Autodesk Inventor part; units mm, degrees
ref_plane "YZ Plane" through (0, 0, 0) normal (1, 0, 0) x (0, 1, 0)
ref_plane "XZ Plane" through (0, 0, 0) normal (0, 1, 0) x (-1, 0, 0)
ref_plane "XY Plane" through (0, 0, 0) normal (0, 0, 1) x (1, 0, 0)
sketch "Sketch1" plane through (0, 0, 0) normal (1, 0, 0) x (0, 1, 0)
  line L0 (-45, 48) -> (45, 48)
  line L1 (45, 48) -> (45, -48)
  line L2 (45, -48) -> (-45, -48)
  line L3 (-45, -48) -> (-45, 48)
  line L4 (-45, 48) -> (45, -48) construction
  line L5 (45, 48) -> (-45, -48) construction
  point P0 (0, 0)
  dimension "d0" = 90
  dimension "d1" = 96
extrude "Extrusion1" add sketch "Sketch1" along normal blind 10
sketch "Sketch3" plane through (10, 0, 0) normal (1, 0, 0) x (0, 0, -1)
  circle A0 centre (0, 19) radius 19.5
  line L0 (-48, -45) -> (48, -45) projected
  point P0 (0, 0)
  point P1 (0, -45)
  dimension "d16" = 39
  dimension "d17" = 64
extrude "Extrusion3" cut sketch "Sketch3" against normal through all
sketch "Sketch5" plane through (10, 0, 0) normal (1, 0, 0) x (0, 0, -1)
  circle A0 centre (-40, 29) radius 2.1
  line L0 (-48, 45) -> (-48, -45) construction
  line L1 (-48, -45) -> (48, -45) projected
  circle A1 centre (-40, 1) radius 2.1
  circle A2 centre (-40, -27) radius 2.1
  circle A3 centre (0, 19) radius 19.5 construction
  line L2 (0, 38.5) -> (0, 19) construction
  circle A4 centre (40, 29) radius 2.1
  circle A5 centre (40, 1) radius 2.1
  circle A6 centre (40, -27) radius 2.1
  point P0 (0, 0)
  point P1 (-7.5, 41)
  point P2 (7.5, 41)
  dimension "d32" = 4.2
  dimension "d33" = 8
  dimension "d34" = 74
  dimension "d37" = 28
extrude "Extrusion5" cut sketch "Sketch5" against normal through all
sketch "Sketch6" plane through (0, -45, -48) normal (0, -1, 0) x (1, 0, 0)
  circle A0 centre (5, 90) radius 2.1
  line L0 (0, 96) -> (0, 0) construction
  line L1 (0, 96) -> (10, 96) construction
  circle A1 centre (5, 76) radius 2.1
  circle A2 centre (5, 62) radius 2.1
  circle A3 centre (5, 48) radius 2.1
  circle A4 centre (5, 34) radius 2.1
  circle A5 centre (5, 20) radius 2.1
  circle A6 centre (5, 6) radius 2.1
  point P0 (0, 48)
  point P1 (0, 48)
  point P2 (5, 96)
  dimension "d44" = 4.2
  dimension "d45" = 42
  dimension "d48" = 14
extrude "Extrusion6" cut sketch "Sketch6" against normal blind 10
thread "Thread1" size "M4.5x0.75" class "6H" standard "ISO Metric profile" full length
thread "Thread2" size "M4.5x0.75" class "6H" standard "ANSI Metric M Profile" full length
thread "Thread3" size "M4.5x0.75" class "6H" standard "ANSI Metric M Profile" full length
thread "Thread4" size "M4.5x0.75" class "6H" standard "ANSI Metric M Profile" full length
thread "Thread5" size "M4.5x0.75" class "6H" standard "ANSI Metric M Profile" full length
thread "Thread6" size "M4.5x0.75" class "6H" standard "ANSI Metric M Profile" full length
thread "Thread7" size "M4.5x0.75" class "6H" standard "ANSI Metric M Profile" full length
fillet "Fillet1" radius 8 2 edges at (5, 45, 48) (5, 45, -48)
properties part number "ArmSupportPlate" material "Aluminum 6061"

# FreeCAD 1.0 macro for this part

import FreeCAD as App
import Part
import Sketcher
from FreeCAD import Vector


def edges_at(feature, points):
    """Names of the edges that pass closest to the given points."""
    edges = feature.Shape.Edges
    near = lambda p: min(range(len(edges)), key=lambda i: edges[i].distToShape(Part.Vertex(*p))[0])
    return sorted({f"Edge{near(p) + 1}" for p in points})


def add_polygon(sketch, points):
    """Adds a closed chain of lines whose ends are joined by coincident constraints."""
    first, n = sketch.GeometryCount, len(points)
    for a, b in zip(points, points[1:] + points[:1]):
        sketch.addGeometry(Part.LineSegment(App.Vector(*a, 0), App.Vector(*b, 0)), False)
    for i in range(n):
        sketch.addConstraint(Sketcher.Constraint("Coincident", first + i, 2, first + (i + 1) % n, 1))

doc = App.newDocument("Part")
body = doc.addObject("PartDesign::Body", "Body")

# Sketch on YZ plane
sketch1 = body.newObject("Sketcher::SketchObject", "Sketch")
sketch1.AttachmentSupport = (doc.getObject("YZ_Plane"), [""])
sketch1.MapMode = "FlatFace"
add_polygon(sketch1, [(45, 48), (-45, 48), (-45, -48), (45, -48)])  # lines 0-3
sketch1.addConstraint([
    Sketcher.Constraint("Horizontal", 0),
    Sketcher.Constraint("Vertical", 1),
    Sketcher.Constraint("Horizontal", 2),
    Sketcher.Constraint("Vertical", 3),
    Sketcher.Constraint("Symmetric", 0, 2, 2, 2, -1, 1),
    Sketcher.Constraint("DistanceX", 0, 2, 0, 1, 90.0),
    Sketcher.Constraint("DistanceY", 1, 2, 1, 1, 96.0),
])
pad1 = body.newObject("PartDesign::Pad", "Pad")
pad1.Profile = sketch1
pad1.Length = 10

# Sketch on YZ plane
sketch2 = body.newObject("Sketcher::SketchObject", "Sketch001")
sketch2.AttachmentSupport = (doc.getObject("YZ_Plane"), [""])
sketch2.MapMode = "FlatFace"
sketch2.AttachmentOffset = App.Placement(Vector(0, 0, 10), App.Rotation())
sketch2.addGeometry(Part.Circle(Vector(19, 0, 0), Vector(0, 0, 1), 20), False)
sketch2.addConstraint([
    Sketcher.Constraint("PointOnObject", 0, 3, -1),
    Sketcher.Constraint("Diameter", 0, 39.0),
    Sketcher.Constraint("DistanceX", -1, 1, 0, 3, 19.0),
])
pocket1 = body.newObject("PartDesign::Pocket", "Pocket")
pocket1.Profile = sketch2
pocket1.Type = "ThroughAll"

# Sketch on YZ plane
sketch3 = body.newObject("Sketcher::SketchObject", "Sketch002")
sketch3.AttachmentSupport = (doc.getObject("YZ_Plane"), [""])
sketch3.MapMode = "FlatFace"
sketch3.AttachmentOffset = App.Placement(Vector(0, 0, 10), App.Rotation())
sketch3.addGeometry([
    Part.Circle(Vector(29, 40, 0), Vector(0, 0, 1), 2.1),  # 0
    Part.Circle(Vector(1, 40, 0), Vector(0, 0, 1), 2.1),  # 1
    Part.Circle(Vector(-27, 40, 0), Vector(0, 0, 1), 2.1),  # 2
    Part.Circle(Vector(29, -40, 0), Vector(0, 0, 1), 2.1),  # 3
    Part.Circle(Vector(1, -40, 0), Vector(0, 0, 1), 2.1),  # 4
    Part.Circle(Vector(-27, -40, 0), Vector(0, 0, 1), 2.1),  # 5
], False)
sketch3.addConstraint([
    Sketcher.Constraint("Equal", 0, 1),
    Sketcher.Constraint("Equal", 1, 2),
    Sketcher.Constraint("Equal", 2, 3),
    Sketcher.Constraint("Equal", 3, 4),
    Sketcher.Constraint("Equal", 4, 5),
    Sketcher.Constraint("Symmetric", 0, 3, 3, 3, -1),
    Sketcher.Constraint("Symmetric", 1, 3, 4, 3, -1),
    Sketcher.Constraint("Symmetric", 2, 3, 5, 3, -1),
    Sketcher.Constraint("Horizontal", 0, 3, 1, 3),
    Sketcher.Constraint("Horizontal", 1, 3, 2, 3),
    Sketcher.Constraint("Diameter", 0, 4.2),
    Sketcher.Constraint("DistanceX", 1, 3, 0, 3, 28.0),
    Sketcher.Constraint("DistanceX", 2, 3, 1, 3, 28.0),
    Sketcher.Constraint("DistanceX", -1, 1, 0, 3, 29.0),
    Sketcher.Constraint("DistanceY", -1, 1, 0, 3, 40.0),
])
pocket2 = body.newObject("PartDesign::Pocket", "Pocket001")
pocket2.Profile = sketch3
pocket2.Type = "ThroughAll"

# Sketch on XZ plane
sketch4 = body.newObject("Sketcher::SketchObject", "Sketch003")
sketch4.AttachmentSupport = (doc.getObject("XZ_Plane"), [""])
sketch4.MapMode = "FlatFace"
sketch4.AttachmentOffset = App.Placement(Vector(0, 0, 45), App.Rotation())
sketch4.addGeometry([
    Part.Circle(Vector(5, 42, 0), Vector(0, 0, 1), 2.1),  # 0
    Part.Circle(Vector(5, 28, 0), Vector(0, 0, 1), 2.1),  # 1
    Part.Circle(Vector(5, 14, 0), Vector(0, 0, 1), 2.1),  # 2
    Part.Circle(Vector(5, 0, 0), Vector(0, 0, 1), 2.1),  # 3
    Part.Circle(Vector(5, -14, 0), Vector(0, 0, 1), 2.1),  # 4
    Part.Circle(Vector(5, -28, 0), Vector(0, 0, 1), 2.1),  # 5
    Part.Circle(Vector(5, -42, 0), Vector(0, 0, 1), 2.1),  # 6
], False)
sketch4.addConstraint([
    Sketcher.Constraint("Equal", 0, 1),
    Sketcher.Constraint("Equal", 1, 2),
    Sketcher.Constraint("Equal", 2, 3),
    Sketcher.Constraint("Equal", 3, 4),
    Sketcher.Constraint("Equal", 4, 5),
    Sketcher.Constraint("Equal", 5, 6),
    Sketcher.Constraint("Symmetric", 2, 3, 4, 3, -1),
    Sketcher.Constraint("Symmetric", 1, 3, 5, 3, -1),
    Sketcher.Constraint("Symmetric", 0, 3, 6, 3, -1),
    Sketcher.Constraint("PointOnObject", 3, 3, -1),
    Sketcher.Constraint("Vertical", 0, 3, 1, 3),
    Sketcher.Constraint("Vertical", 1, 3, 2, 3),
    Sketcher.Constraint("Vertical", 2, 3, 3, 3),
    Sketcher.Constraint("Diameter", 0, 4.2),
    Sketcher.Constraint("DistanceY", -1, 1, 0, 3, 42.0),
    Sketcher.Constraint("DistanceY", -1, 1, 2, 3, 14.0),
    Sketcher.Constraint("DistanceY", 1, 3, 0, 3, 14.0),
    Sketcher.Constraint("DistanceX", -1, 1, 0, 3, 5.0),
])
pocket3 = body.newObject("PartDesign::Pocket", "Pocket002")
pocket3.Profile = sketch4
pocket3.Length = 10
doc.recompute()

fillet = body.newObject("PartDesign::Fillet", "Fillet")
fillet.Base = (pocket3, edges_at(pocket3, [(5, 45, 48), (5, 45, -48)]))
fillet.Radius = 8

doc.recompute()
